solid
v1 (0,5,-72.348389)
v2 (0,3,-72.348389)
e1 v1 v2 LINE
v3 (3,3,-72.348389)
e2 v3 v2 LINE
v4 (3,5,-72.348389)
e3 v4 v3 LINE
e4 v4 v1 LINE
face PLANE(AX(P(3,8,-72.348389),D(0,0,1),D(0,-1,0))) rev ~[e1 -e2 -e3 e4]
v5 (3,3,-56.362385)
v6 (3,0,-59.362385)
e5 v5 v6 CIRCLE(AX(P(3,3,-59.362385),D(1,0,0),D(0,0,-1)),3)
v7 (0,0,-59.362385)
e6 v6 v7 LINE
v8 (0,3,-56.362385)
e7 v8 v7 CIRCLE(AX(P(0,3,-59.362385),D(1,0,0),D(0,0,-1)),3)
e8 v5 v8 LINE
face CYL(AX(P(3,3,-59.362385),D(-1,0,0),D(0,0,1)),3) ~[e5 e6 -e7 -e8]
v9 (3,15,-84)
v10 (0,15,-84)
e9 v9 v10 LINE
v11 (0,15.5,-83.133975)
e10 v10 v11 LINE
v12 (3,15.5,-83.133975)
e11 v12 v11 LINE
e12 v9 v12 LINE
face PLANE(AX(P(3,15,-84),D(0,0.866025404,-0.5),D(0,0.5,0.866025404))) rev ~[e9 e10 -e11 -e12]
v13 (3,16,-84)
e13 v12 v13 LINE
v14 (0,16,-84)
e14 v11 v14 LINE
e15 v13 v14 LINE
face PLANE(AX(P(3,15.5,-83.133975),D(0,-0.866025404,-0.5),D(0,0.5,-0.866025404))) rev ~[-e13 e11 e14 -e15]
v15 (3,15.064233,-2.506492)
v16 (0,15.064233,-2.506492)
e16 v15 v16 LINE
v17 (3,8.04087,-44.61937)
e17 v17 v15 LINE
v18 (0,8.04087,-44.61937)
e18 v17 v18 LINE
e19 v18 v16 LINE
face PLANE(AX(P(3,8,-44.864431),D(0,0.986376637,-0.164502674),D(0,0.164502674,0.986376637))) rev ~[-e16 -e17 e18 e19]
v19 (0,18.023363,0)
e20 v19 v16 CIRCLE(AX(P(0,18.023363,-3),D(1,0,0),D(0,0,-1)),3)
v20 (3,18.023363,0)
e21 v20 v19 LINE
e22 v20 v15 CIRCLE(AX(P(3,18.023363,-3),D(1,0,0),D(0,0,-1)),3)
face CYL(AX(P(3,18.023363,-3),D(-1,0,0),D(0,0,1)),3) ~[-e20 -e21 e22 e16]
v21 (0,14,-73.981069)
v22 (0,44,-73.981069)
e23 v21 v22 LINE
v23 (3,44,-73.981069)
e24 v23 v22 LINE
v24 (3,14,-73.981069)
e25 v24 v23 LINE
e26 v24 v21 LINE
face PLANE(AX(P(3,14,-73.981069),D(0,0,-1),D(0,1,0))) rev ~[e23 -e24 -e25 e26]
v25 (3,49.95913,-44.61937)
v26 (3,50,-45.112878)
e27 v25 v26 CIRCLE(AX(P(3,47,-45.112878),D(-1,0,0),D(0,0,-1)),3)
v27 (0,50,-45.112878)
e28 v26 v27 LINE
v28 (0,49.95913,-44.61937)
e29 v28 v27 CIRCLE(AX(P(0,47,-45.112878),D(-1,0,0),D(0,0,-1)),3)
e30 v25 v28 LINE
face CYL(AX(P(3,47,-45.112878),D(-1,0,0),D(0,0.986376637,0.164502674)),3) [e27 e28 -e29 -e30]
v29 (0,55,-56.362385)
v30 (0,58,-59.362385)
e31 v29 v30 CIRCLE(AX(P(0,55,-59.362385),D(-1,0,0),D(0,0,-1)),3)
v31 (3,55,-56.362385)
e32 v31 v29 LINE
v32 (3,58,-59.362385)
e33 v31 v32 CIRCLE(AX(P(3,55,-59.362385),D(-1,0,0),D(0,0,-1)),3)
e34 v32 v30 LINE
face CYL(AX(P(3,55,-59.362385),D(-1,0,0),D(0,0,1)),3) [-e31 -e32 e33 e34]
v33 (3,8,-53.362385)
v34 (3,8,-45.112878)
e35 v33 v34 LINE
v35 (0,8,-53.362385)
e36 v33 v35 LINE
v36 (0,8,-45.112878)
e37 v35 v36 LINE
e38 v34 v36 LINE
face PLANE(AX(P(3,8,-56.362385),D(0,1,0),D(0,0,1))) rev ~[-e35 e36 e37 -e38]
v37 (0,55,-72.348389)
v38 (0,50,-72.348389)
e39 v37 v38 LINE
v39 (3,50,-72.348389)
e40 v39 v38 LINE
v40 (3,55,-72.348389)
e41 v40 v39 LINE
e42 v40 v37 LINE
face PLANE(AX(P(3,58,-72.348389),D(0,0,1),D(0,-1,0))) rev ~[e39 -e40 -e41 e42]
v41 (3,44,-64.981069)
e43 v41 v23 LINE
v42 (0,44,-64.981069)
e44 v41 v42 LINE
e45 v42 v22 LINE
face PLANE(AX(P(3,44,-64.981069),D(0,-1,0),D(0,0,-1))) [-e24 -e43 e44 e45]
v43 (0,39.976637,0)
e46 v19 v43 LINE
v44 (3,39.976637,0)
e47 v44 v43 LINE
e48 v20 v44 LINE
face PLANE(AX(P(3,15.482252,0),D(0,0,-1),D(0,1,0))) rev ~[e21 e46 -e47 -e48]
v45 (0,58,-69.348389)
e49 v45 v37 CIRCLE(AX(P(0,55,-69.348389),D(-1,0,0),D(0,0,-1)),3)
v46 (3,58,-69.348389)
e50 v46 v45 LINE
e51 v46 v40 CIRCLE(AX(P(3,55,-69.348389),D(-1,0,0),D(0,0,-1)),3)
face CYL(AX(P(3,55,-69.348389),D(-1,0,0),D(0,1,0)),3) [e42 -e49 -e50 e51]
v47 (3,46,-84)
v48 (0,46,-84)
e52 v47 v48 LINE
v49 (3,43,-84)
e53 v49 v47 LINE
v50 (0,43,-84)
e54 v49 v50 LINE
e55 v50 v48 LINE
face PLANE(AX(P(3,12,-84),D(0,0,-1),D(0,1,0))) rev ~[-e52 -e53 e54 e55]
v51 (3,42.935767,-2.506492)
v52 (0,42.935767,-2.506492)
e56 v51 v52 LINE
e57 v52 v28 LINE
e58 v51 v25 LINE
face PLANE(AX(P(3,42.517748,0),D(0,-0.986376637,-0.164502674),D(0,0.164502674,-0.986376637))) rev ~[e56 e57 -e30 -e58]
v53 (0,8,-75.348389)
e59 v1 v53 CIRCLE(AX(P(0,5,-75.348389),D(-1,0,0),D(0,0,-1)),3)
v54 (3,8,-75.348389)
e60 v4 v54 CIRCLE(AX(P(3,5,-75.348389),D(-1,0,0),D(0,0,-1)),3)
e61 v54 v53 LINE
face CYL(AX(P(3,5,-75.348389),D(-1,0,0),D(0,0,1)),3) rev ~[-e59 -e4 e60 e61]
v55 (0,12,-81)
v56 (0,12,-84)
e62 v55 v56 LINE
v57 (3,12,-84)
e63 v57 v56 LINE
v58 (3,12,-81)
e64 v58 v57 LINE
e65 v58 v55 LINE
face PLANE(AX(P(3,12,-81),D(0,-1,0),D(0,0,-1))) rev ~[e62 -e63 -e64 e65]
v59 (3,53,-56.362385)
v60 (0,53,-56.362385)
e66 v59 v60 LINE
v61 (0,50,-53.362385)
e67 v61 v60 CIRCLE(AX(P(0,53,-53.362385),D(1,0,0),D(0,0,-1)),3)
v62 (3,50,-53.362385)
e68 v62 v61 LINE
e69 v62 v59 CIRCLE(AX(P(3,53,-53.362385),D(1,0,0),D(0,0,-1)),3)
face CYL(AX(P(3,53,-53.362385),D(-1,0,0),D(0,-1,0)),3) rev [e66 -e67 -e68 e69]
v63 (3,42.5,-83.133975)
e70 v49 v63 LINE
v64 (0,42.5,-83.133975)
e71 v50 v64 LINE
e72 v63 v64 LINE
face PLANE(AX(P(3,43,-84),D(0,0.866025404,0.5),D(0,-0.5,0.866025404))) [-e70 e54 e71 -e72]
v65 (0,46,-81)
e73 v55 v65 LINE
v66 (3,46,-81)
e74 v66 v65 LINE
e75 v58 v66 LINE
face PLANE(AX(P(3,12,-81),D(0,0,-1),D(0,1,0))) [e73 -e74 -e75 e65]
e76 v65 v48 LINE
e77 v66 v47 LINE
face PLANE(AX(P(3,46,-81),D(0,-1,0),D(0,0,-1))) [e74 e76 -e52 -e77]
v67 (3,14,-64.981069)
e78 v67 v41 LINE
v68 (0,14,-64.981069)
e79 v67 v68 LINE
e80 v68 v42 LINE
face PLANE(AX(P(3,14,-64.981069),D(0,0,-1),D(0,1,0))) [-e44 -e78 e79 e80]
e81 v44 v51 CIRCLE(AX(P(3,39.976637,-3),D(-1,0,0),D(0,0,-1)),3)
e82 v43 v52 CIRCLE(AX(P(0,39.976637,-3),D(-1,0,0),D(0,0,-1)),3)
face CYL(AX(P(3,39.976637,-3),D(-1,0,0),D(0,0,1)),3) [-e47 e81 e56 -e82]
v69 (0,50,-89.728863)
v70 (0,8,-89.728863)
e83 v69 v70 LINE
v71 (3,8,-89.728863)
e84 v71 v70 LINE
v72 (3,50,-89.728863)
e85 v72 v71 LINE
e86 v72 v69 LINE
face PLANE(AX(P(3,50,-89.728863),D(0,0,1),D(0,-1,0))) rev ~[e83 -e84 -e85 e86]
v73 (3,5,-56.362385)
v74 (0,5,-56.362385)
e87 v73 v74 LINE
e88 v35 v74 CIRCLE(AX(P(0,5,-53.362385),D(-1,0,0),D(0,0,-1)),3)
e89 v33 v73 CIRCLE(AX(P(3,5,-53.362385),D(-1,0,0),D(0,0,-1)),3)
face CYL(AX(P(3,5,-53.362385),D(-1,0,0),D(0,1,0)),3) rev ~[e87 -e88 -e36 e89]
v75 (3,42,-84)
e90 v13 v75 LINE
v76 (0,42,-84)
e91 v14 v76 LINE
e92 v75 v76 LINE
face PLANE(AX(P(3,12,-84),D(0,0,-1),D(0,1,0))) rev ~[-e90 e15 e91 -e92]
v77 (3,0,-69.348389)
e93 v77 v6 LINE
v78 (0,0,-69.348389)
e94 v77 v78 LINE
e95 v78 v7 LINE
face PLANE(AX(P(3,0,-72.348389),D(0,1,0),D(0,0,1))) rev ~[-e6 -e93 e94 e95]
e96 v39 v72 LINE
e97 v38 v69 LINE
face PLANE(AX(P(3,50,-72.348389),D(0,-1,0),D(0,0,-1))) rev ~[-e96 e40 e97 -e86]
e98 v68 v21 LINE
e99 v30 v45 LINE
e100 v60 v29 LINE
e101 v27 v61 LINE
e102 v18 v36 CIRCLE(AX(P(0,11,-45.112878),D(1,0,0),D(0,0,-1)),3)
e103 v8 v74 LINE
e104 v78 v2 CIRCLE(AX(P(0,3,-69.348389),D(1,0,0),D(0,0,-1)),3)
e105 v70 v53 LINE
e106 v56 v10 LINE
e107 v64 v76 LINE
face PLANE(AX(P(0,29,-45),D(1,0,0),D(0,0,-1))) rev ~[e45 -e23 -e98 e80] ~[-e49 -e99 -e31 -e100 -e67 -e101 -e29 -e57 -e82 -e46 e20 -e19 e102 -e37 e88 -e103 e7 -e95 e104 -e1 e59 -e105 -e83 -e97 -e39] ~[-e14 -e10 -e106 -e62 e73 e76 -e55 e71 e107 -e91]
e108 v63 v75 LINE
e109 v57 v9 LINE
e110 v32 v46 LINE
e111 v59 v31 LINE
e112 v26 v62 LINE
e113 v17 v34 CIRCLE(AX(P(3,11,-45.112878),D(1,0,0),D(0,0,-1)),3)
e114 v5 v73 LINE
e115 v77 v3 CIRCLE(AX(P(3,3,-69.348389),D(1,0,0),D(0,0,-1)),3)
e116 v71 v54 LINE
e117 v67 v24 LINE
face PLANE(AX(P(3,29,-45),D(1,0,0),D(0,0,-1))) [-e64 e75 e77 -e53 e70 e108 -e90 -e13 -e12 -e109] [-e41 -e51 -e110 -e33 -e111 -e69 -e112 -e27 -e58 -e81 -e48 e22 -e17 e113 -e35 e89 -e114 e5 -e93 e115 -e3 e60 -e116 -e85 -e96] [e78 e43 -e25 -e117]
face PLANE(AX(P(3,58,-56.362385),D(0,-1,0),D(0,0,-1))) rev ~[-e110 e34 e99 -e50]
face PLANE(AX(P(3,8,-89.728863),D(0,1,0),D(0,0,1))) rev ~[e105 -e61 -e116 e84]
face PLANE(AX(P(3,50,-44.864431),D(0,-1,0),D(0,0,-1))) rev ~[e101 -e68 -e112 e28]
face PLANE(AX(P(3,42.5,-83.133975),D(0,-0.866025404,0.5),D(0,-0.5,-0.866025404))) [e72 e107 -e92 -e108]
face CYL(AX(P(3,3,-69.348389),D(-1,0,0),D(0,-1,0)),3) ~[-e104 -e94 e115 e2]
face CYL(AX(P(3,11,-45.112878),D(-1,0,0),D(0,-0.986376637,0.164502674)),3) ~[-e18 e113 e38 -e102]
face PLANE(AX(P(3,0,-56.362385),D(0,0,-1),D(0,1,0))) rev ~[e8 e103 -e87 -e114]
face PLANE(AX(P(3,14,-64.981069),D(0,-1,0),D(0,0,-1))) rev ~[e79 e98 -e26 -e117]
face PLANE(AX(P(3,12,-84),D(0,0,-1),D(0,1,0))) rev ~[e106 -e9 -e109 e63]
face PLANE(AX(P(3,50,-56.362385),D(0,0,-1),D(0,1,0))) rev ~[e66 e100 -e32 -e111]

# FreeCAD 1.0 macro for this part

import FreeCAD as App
import Part
import Sketcher
Q = App.Units.Quantity


def edges_at(feature, points):
    """Names of the edges that pass closest to the given points."""
    edges = feature.Shape.Edges
    near = lambda p: min(range(len(edges)), key=lambda i: edges[i].distToShape(Part.Vertex(*p))[0])
    return sorted({f"Edge{near(p) + 1}" for p in points})


def add_polygon(sketch, points):
    """Adds a closed chain of lines whose ends are joined by coincident constraints."""
    first, n = sketch.GeometryCount, len(points)
    for a, b in zip(points, points[1:] + points[:1]):
        sketch.addGeometry(Part.LineSegment(App.Vector(*a, 0), App.Vector(*b, 0)), False)
    for i in range(n):
        sketch.addConstraint(Sketcher.Constraint("Coincident", first + i, 2, first + (i + 1) % n, 1))

doc = App.newDocument("Part")
body = doc.addObject("PartDesign::Body", "Body")

# Sketch on YZ plane
sketch1 = body.newObject("Sketcher::SketchObject", "Sketch")
sketch1.AttachmentSupport = (doc.getObject("YZ_Plane"), [""])
sketch1.MapMode = "FlatFace"
add_polygon(sketch1, [(58, 0), (0, 0), (0, -90), (58, -90)])  # lines 0-3
sketch1.addConstraint([
    Sketcher.Constraint("Horizontal", 0),
    Sketcher.Constraint("Vertical", 1),
    Sketcher.Constraint("Horizontal", 2),
    Sketcher.Constraint("Vertical", 3),
    Sketcher.Constraint("Coincident", 0, 2, -1, 1),
    Sketcher.Constraint("DistanceX", 0, 2, 0, 1, 58.0),
    Sketcher.Constraint("DistanceY", 1, 2, 1, 1, 90.0),
])
pad1 = body.newObject("PartDesign::Pad", "Pad")
pad1.Profile = sketch1
pad1.Length = 3

# Sketch on YZ plane
sketch2 = body.newObject("Sketcher::SketchObject", "Sketch001")
sketch2.AttachmentSupport = (doc.getObject("YZ_Plane"), [""])
sketch2.MapMode = "FlatFace"
sketch2.AttachmentOffset = App.Placement(App.Vector(0, 0, 3), App.Rotation())
add_polygon(sketch2, [(69.711, 11.711), (-11.711, 11.711), (-11.711, -101.711), (69.711, -101.711)])  # lines 0-3
add_polygon(sketch2, [(42.517748, 0), (50, -44.864431), (50, -56.362385), (58, -56.362385), (58, -72.348389), (50, -72.348389), (50, -89.728863), (8, -89.728863), (8, -72.348389), (0, -72.348389), (0, -56.362385), (8, -56.362385), (8, -44.864431), (15.482252, 0)])  # lines 4-17
add_polygon(sketch2, [(46, -81), (12, -81), (12, -84), (46, -84)])  # lines 18-21
sketch2.addConstraint([
    Sketcher.Constraint("Horizontal", 0),
    Sketcher.Constraint("Vertical", 1),
    Sketcher.Constraint("Horizontal", 2),
    Sketcher.Constraint("Vertical", 3),
    Sketcher.Constraint("Vertical", 5),
    Sketcher.Constraint("Horizontal", 6),
    Sketcher.Constraint("Vertical", 7),
    Sketcher.Constraint("Horizontal", 8),
    Sketcher.Constraint("Vertical", 9),
    Sketcher.Constraint("Horizontal", 10),
    Sketcher.Constraint("Vertical", 11),
    Sketcher.Constraint("Horizontal", 12),
    Sketcher.Constraint("Vertical", 13),
    Sketcher.Constraint("Horizontal", 14),
    Sketcher.Constraint("Vertical", 15),
    Sketcher.Constraint("Horizontal", 17),
    Sketcher.Constraint("Horizontal", 18),
    Sketcher.Constraint("Vertical", 19),
    Sketcher.Constraint("Horizontal", 20),
    Sketcher.Constraint("Vertical", 21),
    Sketcher.Constraint("PointOnObject", 12, 2, -2),
    Sketcher.Constraint("PointOnObject", 16, 2, -1),
    Sketcher.Constraint("Horizontal", 8, 2, 11, 2),
    Sketcher.Constraint("Horizontal", 6, 2, 13, 2),
    Sketcher.Constraint("Horizontal", 4, 2, 15, 2),
    Sketcher.Constraint("Vertical", 5, 2, 8, 2),
    Sketcher.Constraint("Vertical", 11, 2, 14, 2),
    Sketcher.Constraint("Equal", 8, 12),
    Sketcher.Constraint("Equal", 4, 16),
    Sketcher.Constraint("DistanceX", 6, 1, 6, 2, 8.0),
    Sketcher.Constraint("DistanceX", 10, 2, 10, 1, 42.0),
    Sketcher.Constraint("DistanceX", 18, 2, 18, 1, 34.0),
    Sketcher.Constraint("DistanceY", 19, 2, 19, 1, 3.0),
    Sketcher.Constraint("DistanceX", -1, 1, 18, 2, 12.0),
    Sketcher.Constraint("DistanceY", 18, 2, -1, 1, 81.0),
    Sketcher.Constraint("DistanceX", 0, 2, 0, 1, 81.422),
    Sketcher.Constraint("DistanceY", 1, 2, 1, 1, 113.422),
    Sketcher.Constraint("DistanceX", 0, 2, -1, 1, 11.711),
    Sketcher.Constraint("DistanceY", -1, 1, 0, 2, 11.711),
    Sketcher.Constraint("DistanceX", 17, 1, 17, 2, 27.035495),
    Sketcher.Constraint("DistanceY", 5, 2, 5, 1, 11.497953),
    Sketcher.Constraint("DistanceY", 7, 2, 7, 1, 15.986004),
    Sketcher.Constraint("DistanceY", 9, 2, 9, 1, 17.380474),
    Sketcher.Constraint("DistanceY", 4, 2, -1, 1, 44.864431),
])
pocket1 = body.newObject("PartDesign::Pocket", "Pocket")
pocket1.Profile = sketch2
pocket1.Length = 3

# Sketch on YZ plane
sketch3 = body.newObject("Sketcher::SketchObject", "Sketch002")
sketch3.AttachmentSupport = (doc.getObject("YZ_Plane"), [""])
sketch3.MapMode = "FlatFace"
sketch3.AttachmentOffset = App.Placement(App.Vector(0, 0, 3), App.Rotation())
add_polygon(sketch3, [(44, -64.981069), (14, -64.981069), (14, -73.981069), (44, -73.981069)])  # lines 0-3
sketch3.addConstraint([
    Sketcher.Constraint("Horizontal", 0),
    Sketcher.Constraint("Vertical", 1),
    Sketcher.Constraint("Horizontal", 2),
    Sketcher.Constraint("Vertical", 3),
    Sketcher.Constraint("DistanceX", 0, 2, 0, 1, 30.0),
    Sketcher.Constraint("DistanceY", 1, 2, 1, 1, 9.0),
    Sketcher.Constraint("DistanceX", -1, 1, 0, 2, 14.0),
    Sketcher.Constraint("DistanceY", 0, 2, -1, 1, 64.981069),
])
pocket2 = body.newObject("PartDesign::Pocket", "Pocket001")
pocket2.Profile = sketch3
pocket2.Type = "ThroughAll"
doc.recompute()

fillet = body.newObject("PartDesign::Fillet", "Fillet")
fillet.Base = (pocket2, edges_at(pocket2, [
    (1.5, 8, -72.348),
    (1.5, 0, -72.348),
    (1.5, 0, -56.362),
    (1.5, 8, -56.362),
    (1.5, 8, -44.864),
    (1.5, 15.482, 0),
    (1.5, 42.518, 0),
    (1.5, 50, -44.864),
    (1.5, 50, -56.362),
    (1.5, 58, -56.362),
    (1.5, 58, -72.348),
]))
fillet.Radius = 3

# Sketch on YZ plane
sketch4 = body.newObject("Sketcher::SketchObject", "Sketch003")
sketch4.AttachmentSupport = (doc.getObject("YZ_Plane"), [""])
sketch4.MapMode = "FlatFace"
sketch4.AttachmentOffset = App.Placement(App.Vector(0, 0, 3), App.Rotation())
add_polygon(sketch4, [(43, -84), (42.5, -83.133975), (42, -84)])  # lines 0-2
add_polygon(sketch4, [(16, -84), (15.5, -83.133975), (15, -84)])  # lines 3-5
sketch4.addConstraint([
    Sketcher.Constraint("Horizontal", 2),
    Sketcher.Constraint("Horizontal", 5),
    Sketcher.Constraint("Parallel", 0, 3),
    Sketcher.Constraint("Parallel", 1, 4),
    Sketcher.Constraint("Horizontal", 0, 2, 3, 2),
    Sketcher.Constraint("Horizontal", 2, 2, 4, 2),
    Sketcher.Constraint("Equal", 0, 1),
    Sketcher.Constraint("DistanceX", 2, 1, 2, 2, 1.0),
    Sketcher.Constraint("Angle", 0, Q("120 deg")),
    Sketcher.Constraint("DistanceX", -1, 1, 1, 2, 42.0),
    Sketcher.Constraint("DistanceY", 1, 2, -1, 1, 84.0),
    Sketcher.Constraint("DistanceX", -1, 1, 4, 2, 15.0),
])
pad2 = body.newObject("PartDesign::Pad", "Pad001")
pad2.Profile = sketch4
pad2.Length = 3
pad2.Reversed = True

doc.recompute()
